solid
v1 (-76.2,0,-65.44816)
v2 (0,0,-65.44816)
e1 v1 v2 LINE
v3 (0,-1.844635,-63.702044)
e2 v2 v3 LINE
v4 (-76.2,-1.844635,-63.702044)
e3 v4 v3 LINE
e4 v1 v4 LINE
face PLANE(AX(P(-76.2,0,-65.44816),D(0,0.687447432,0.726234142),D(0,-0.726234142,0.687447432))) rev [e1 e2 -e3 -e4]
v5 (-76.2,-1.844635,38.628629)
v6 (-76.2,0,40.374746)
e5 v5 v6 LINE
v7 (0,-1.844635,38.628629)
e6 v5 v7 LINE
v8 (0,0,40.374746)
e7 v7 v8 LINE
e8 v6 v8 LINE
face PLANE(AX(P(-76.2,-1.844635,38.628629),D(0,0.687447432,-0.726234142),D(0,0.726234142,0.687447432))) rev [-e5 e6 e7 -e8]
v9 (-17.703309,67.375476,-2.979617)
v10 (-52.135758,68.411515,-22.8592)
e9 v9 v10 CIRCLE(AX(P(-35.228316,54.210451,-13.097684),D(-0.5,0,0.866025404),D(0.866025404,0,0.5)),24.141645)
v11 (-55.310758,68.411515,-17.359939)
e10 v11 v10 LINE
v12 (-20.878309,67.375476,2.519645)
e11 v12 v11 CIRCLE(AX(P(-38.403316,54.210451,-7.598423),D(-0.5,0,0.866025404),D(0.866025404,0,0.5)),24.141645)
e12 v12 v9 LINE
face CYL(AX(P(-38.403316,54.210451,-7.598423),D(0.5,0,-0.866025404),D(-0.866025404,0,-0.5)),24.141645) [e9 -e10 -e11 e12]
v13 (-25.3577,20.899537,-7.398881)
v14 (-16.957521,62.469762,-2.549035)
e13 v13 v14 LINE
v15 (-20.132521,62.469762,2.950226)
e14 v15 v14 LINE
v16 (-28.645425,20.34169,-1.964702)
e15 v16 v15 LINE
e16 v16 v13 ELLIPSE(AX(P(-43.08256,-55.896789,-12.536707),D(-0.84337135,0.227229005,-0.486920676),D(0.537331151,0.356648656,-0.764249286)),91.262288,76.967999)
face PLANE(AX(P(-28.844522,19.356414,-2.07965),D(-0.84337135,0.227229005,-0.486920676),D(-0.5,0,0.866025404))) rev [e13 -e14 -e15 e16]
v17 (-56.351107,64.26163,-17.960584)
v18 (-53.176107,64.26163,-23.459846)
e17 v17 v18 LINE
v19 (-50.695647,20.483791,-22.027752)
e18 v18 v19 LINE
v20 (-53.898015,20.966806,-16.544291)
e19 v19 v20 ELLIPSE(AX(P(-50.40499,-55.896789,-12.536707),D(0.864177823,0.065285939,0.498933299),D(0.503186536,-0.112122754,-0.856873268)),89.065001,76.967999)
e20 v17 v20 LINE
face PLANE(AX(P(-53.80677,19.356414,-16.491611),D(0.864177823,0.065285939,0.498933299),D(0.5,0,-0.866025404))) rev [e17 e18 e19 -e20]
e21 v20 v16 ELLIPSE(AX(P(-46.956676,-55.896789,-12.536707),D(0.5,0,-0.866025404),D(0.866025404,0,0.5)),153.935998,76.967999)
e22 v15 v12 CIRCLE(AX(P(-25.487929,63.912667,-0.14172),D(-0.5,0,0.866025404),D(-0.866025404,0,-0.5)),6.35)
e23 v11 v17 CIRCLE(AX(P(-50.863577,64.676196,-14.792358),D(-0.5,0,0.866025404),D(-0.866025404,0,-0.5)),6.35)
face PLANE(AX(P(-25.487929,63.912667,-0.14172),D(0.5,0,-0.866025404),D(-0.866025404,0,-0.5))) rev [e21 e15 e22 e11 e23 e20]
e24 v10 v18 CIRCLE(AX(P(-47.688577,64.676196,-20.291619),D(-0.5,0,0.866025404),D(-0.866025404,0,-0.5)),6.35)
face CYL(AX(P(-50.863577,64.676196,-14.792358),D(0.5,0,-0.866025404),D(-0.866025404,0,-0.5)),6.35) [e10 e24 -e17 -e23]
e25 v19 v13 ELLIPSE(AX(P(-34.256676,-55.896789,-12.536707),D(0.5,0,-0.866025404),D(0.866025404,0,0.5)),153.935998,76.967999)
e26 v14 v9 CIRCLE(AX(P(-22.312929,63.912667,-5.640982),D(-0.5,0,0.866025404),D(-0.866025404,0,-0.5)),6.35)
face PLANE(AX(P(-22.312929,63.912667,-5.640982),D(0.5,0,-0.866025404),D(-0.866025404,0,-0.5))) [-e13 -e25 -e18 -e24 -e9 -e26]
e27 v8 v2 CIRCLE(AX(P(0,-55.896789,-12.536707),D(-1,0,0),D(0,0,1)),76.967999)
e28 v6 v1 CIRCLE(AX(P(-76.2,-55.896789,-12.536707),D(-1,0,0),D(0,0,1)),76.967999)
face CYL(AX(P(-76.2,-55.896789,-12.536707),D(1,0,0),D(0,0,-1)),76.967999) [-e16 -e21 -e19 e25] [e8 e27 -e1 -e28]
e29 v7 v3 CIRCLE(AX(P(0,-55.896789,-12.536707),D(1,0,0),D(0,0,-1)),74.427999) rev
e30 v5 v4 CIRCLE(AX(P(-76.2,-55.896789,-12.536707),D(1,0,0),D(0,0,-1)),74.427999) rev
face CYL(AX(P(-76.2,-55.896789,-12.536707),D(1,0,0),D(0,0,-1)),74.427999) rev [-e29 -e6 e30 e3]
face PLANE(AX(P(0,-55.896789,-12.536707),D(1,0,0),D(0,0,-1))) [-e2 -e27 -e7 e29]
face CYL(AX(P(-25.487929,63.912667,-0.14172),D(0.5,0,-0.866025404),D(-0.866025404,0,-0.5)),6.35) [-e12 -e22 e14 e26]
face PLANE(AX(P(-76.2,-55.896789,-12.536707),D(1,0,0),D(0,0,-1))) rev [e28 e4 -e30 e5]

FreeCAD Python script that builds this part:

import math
import FreeCAD as App
import Part
import Sketcher
from FreeCAD import Vector
Q = App.Units.Quantity

doc = App.newDocument("Part")
body = doc.addObject("PartDesign::Body", "Body")

# Sketch on YZ plane
sketch1 = body.newObject("Sketcher::SketchObject", "Sketch")
sketch1.AttachmentSupport = (doc.getObject("YZ_Plane"), [""])
sketch1.MapMode = "FlatFace"
sketch1.addGeometry(Part.ArcOfCircle(Part.Circle(Vector(-55.9, -12.5, 0), Vector(0, 0, 1), 77), math.radians(-43), math.radians(43)), False)
sketch1.addGeometry(Part.LineSegment(Vector(0, 40.4, 0), Vector(-1.8, 38.6, 0)), False)
sketch1.addGeometry(Part.ArcOfCircle(Part.Circle(Vector(-55.9, -12.5, 0), Vector(0, 0, 1), 74.4), math.radians(-43), math.radians(43)), False)
sketch1.addGeometry(Part.LineSegment(Vector(-1.8, -63.7, 0), Vector(0, -65.4, 0)), False)
sketch1.addConstraint(Sketcher.Constraint("Coincident", 0, 2, 1, 1))
sketch1.addConstraint(Sketcher.Constraint("Coincident", 1, 2, 2, 2))
sketch1.addConstraint(Sketcher.Constraint("Coincident", 2, 1, 3, 1))
sketch1.addConstraint(Sketcher.Constraint("Coincident", 3, 2, 0, 1))
sketch1.addConstraint(Sketcher.Constraint("Coincident", 2, 3, 0, 3))
sketch1.addConstraint(Sketcher.Constraint("PointOnObject", 0, 2, -2))
sketch1.addConstraint(Sketcher.Constraint("PointOnObject", 3, 2, -2))
sketch1.addConstraint(Sketcher.Constraint("Vertical", 1, 2, 2, 1))
sketch1.addConstraint(Sketcher.Constraint("Distance", 1, Q("0.1 in")))
sketch1.addConstraint(Sketcher.Constraint("Radius", 0, Q("76.967999 mm")))
sketch1.addConstraint(Sketcher.Constraint("DistanceX", 0, 3, -1, 1, Q("55.896789 mm")))
sketch1.addConstraint(Sketcher.Constraint("DistanceY", -1, 1, 1, 2, Q("38.628629 mm")))
sketch1.addConstraint(Sketcher.Constraint("DistanceY", 3, 2, -1, 1, Q("65.44816 mm")))
pad1 = body.newObject("PartDesign::Pad", "Pad")
pad1.Profile = sketch1
pad1.Length = Q("3 in")
pad1.Reversed = True

# Sketch on an angled plane
sketch2 = body.newObject("Sketcher::SketchObject", "Sketch001")
sketch2.Placement = App.Placement(Vector(-4.723115, 0, 8.180676), App.Rotation(Vector(0.866025404, 0, 0.5), Vector(0, 1, 0), Vector(-0.5, 0, 0.866025404), "ZXY"))
sketch2.addGeometry(Part.LineSegment(Vector(-26, 19.4, 0), Vector(-16, 62.5, 0)), False)
sketch2.addGeometry(Part.ArcOfCircle(Part.Circle(Vector(-22.1, 63.9, 0), Vector(0, 0, 1), 6.4), math.radians(-13), math.radians(33)), False)
sketch2.addGeometry(Part.ArcOfCircle(Part.Circle(Vector(-37.1, 54.2, 0), Vector(0, 0, 1), 24.1), math.radians(33), math.radians(144)), False)
sketch2.addGeometry(Part.ArcOfCircle(Part.Circle(Vector(-51.4, 64.7, 0), Vector(0, 0, 1), 6.3), math.radians(144), math.radians(184)), False)
sketch2.addGeometry(Part.LineSegment(Vector(-57.8, 64.3, 0), Vector(-54.8, 19.4, 0)), False)
sketch2.addGeometry(Part.LineSegment(Vector(-54.8, 19.4, 0), Vector(-26, 19.4, 0)), False)
sketch2.addConstraint(Sketcher.Constraint("Tangent", 0, 2, 1, 1))
sketch2.addConstraint(Sketcher.Constraint("Tangent", 1, 2, 2, 1))
sketch2.addConstraint(Sketcher.Constraint("Tangent", 2, 2, 3, 1))
sketch2.addConstraint(Sketcher.Constraint("Tangent", 3, 2, 4, 1))
sketch2.addConstraint(Sketcher.Constraint("Coincident", 4, 2, 5, 1))
sketch2.addConstraint(Sketcher.Constraint("Coincident", 5, 2, 0, 1))
sketch2.addConstraint(Sketcher.Constraint("Horizontal", 5))
sketch2.addConstraint(Sketcher.Constraint("Equal", 1, 3))
sketch2.addConstraint(Sketcher.Constraint("Radius", 1, Q("0.25 in")))
sketch2.addConstraint(Sketcher.Constraint("DistanceX", 5, 1, 5, 2, Q("1.1348 in")))
sketch2.addConstraint(Sketcher.Constraint("Radius", 2, Q("24.141645 mm")))
sketch2.addConstraint(Sketcher.Constraint("DistanceY", 4, 2, 2, 2, Q("49.055101 mm")))
sketch2.addConstraint(Sketcher.Constraint("Distance", 0, Q("44.271429 mm")))
sketch2.addConstraint(Sketcher.Constraint("Distance", 4, Q("45.001221 mm")))
sketch2.addConstraint(Sketcher.Constraint("DistanceX", 2, 3, -1, 1, Q("37.057459 mm")))
sketch2.addConstraint(Sketcher.Constraint("DistanceY", -1, 1, 2, 3, Q("54.210451 mm")))
sketch2.addConstraint(Sketcher.Constraint("DistanceX", 3, 3, -1, 1, Q("51.445329 mm")))
pad2 = body.newObject("PartDesign::Pad", "Pad001")
pad2.Profile = sketch2
pad2.Length = Q("0.25 in")
pad2.Midplane = True

doc.recompute()
